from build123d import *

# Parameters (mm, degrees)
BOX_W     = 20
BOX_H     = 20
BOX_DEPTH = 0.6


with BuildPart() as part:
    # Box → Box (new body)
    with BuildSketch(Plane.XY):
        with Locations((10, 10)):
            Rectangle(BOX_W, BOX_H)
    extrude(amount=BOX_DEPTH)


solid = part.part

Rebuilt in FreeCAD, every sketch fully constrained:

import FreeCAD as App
import Part
import Sketcher

doc = App.newDocument("Part")
body = doc.addObject("PartDesign::Body", "Body")

sketch1 = body.newObject("Sketcher::SketchObject", "Sketch")
sketch1.AttachmentSupport = (doc.getObject("XY_Plane"), [""])
sketch1.MapMode = "FlatFace"
sketch1.addGeometry([
    Part.LineSegment(App.Vector(0, 20, 0), App.Vector(0, 0, 0)),
    Part.LineSegment(App.Vector(0, 0, 0), App.Vector(20, 0, 0)),
    Part.LineSegment(App.Vector(20, 0, 0), App.Vector(20, 20, 0)),
    Part.LineSegment(App.Vector(20, 20, 0), App.Vector(0, 20, 0)),
], False)
sketch1.addConstraint([
    Sketcher.Constraint("Coincident", 0, 2, 1, 1),
    Sketcher.Constraint("Coincident", 1, 2, 2, 1),
    Sketcher.Constraint("Coincident", 2, 2, 3, 1),
    Sketcher.Constraint("Coincident", 3, 2, 0, 1),
    Sketcher.Constraint("Vertical", 0),
    Sketcher.Constraint("Horizontal", 1),
    Sketcher.Constraint("Vertical", 2),
    Sketcher.Constraint("Horizontal", 3),
    Sketcher.Constraint("Coincident", 0, 2, -1, 1),
    Sketcher.Constraint("Equal", 3, 0),
    Sketcher.Constraint("DistanceX", 1, 1, 1, 2, 20.0),
])
pad1 = body.newObject("PartDesign::Pad", "Pad")
pad1.Profile = sketch1
pad1.Length = 0.6

doc.recompute()
